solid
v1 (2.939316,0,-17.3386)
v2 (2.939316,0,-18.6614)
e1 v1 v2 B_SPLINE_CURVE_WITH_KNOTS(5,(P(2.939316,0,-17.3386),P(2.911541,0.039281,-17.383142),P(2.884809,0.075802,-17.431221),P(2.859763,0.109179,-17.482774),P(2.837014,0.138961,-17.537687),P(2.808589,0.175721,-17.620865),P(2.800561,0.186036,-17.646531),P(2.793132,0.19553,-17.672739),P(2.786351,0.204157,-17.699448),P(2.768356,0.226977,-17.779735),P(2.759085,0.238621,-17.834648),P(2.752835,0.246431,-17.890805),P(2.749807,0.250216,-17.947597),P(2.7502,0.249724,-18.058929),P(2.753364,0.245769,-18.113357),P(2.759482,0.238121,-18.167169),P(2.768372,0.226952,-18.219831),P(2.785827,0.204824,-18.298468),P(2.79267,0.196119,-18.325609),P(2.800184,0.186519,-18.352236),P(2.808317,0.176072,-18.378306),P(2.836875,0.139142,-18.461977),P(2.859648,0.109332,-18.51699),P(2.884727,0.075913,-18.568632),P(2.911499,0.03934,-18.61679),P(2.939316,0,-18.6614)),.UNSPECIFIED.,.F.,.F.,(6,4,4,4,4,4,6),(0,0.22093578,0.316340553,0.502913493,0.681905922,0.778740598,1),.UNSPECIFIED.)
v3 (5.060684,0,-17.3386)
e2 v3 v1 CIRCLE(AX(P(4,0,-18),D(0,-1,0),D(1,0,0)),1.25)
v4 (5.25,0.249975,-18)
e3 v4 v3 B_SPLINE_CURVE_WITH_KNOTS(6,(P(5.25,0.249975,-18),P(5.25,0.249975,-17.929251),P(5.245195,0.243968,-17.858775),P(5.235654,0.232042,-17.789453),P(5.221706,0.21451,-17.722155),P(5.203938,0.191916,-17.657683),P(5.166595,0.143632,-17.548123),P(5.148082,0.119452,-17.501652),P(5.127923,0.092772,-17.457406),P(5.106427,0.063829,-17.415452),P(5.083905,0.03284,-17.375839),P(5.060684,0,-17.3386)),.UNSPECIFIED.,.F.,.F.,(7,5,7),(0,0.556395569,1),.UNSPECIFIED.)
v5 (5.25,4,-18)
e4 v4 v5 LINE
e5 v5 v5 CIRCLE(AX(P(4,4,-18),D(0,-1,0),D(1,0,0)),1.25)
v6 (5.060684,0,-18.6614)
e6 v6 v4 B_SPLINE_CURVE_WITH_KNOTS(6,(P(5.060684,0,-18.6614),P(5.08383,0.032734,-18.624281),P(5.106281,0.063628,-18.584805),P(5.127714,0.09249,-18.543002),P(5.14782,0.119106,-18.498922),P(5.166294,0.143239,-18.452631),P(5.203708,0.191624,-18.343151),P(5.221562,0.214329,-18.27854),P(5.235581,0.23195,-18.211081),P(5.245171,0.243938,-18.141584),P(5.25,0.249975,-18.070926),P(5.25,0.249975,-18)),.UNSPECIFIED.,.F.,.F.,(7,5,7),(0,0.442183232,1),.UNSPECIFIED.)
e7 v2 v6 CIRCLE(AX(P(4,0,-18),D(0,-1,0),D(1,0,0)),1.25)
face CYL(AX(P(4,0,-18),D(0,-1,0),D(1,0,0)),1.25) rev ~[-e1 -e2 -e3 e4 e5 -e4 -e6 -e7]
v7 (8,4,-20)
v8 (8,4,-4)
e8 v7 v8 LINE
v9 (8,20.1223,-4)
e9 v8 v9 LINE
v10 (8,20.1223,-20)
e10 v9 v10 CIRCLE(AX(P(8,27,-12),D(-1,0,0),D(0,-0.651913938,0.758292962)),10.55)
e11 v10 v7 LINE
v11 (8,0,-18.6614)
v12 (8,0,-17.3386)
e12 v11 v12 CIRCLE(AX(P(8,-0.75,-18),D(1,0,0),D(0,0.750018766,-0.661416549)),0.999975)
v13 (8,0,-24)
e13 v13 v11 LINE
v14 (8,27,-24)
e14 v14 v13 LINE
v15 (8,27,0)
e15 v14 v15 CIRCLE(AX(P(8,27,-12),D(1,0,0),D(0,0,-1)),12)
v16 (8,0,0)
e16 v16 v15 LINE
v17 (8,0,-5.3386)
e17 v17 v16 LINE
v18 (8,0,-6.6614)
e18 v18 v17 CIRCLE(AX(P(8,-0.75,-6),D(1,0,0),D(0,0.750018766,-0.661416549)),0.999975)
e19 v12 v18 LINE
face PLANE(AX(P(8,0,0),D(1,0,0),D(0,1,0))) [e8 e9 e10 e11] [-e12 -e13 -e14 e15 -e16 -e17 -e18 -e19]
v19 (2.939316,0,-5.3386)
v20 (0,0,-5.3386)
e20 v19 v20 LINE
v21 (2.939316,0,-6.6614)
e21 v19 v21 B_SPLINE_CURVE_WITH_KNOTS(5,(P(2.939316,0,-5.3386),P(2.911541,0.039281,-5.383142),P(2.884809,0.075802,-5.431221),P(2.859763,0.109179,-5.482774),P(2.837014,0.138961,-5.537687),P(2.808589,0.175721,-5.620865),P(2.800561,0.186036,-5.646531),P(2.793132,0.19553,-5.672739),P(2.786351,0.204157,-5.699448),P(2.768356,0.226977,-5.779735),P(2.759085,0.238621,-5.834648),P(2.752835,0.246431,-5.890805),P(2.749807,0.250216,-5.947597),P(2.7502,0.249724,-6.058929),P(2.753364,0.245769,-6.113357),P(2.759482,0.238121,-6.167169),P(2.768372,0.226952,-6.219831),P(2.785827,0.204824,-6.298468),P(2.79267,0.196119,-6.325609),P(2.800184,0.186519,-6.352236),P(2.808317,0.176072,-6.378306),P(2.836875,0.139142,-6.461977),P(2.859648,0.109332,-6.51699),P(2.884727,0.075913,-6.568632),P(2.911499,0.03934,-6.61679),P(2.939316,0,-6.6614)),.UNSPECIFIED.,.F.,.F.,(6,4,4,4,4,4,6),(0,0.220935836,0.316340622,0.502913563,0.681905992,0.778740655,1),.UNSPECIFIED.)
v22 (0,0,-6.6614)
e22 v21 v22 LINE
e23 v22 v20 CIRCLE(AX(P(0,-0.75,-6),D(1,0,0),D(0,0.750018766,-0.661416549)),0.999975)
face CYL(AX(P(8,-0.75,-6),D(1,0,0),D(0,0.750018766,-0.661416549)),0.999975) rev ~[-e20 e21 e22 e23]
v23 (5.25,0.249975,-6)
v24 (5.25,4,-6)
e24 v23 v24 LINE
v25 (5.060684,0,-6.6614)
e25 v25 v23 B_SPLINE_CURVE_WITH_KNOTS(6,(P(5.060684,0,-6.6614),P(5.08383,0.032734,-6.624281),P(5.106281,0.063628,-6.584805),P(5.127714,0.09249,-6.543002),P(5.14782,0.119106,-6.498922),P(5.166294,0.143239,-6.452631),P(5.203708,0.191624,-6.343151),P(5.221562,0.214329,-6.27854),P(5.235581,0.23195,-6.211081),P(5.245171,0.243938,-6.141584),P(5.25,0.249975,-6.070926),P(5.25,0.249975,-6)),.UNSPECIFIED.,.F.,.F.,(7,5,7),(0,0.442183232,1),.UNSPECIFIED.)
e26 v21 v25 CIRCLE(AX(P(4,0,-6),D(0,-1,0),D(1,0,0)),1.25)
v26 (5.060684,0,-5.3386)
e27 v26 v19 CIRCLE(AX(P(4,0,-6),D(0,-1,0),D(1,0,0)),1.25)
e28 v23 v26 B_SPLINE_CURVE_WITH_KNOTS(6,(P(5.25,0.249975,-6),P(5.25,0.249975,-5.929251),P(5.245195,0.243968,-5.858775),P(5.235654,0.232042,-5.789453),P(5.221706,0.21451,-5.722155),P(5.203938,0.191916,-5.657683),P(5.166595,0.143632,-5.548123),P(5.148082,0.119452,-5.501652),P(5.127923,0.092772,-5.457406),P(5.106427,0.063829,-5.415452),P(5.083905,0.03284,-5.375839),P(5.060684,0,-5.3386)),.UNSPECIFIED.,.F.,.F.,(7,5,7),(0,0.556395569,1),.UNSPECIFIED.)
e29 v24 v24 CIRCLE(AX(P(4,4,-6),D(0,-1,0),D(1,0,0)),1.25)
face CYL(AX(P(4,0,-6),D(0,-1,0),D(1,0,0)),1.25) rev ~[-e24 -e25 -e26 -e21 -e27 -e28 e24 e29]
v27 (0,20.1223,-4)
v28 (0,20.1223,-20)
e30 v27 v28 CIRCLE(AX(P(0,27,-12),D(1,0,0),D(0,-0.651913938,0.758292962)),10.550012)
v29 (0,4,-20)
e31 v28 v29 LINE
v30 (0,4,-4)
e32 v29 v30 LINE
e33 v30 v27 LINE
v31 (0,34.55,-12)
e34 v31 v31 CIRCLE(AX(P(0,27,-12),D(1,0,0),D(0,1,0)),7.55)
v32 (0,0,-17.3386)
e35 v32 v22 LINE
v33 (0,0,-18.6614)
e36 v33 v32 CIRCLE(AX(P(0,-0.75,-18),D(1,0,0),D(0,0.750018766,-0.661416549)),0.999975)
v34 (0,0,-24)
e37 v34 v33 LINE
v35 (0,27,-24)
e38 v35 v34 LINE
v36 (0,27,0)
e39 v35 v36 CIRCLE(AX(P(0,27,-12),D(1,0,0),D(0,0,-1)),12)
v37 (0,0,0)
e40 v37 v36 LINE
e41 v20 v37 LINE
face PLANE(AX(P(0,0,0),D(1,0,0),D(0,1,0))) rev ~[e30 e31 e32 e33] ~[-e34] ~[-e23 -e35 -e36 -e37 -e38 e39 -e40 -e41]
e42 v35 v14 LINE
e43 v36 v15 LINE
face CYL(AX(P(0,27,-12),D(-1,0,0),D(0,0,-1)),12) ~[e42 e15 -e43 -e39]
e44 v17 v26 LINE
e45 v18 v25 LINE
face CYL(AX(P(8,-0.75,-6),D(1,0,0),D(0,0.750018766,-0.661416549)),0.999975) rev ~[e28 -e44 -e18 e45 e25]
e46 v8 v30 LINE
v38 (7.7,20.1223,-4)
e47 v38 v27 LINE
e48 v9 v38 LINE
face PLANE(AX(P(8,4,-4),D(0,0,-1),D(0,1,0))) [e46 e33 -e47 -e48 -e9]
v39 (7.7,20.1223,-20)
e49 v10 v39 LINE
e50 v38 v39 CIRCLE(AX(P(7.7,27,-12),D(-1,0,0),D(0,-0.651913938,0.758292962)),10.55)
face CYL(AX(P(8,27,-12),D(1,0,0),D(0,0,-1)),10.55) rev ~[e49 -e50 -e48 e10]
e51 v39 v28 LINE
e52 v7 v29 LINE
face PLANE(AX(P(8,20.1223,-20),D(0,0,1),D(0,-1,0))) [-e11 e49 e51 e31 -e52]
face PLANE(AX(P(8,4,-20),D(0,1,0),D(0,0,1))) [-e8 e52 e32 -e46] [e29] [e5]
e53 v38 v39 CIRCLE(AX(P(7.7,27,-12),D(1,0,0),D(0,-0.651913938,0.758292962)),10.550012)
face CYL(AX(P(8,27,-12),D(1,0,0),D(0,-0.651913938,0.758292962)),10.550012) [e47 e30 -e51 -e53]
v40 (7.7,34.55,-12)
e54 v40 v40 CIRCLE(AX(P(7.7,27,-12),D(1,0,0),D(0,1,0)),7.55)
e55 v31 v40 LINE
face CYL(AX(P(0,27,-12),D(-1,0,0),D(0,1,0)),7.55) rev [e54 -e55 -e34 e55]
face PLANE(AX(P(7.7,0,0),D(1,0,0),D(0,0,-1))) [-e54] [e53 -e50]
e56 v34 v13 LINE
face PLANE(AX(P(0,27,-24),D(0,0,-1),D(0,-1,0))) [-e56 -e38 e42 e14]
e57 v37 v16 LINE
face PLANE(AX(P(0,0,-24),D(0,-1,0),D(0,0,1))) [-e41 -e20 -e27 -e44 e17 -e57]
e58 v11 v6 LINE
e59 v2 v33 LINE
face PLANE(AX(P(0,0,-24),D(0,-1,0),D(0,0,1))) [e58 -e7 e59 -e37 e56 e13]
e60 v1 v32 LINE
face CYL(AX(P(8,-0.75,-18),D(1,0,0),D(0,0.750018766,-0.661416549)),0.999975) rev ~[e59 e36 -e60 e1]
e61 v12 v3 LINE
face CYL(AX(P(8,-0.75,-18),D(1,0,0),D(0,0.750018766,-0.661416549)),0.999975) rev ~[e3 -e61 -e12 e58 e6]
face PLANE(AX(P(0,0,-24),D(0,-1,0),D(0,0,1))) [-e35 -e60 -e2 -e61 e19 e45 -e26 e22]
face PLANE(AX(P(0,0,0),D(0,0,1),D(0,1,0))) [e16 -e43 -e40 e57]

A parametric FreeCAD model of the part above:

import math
import FreeCAD as App
import Part
import Sketcher

V = App.Vector

doc = App.newDocument("Part")
body = doc.addObject("PartDesign::Body", "Body")

# Sketch on YZ plane
sketch1 = body.newObject("Sketcher::SketchObject", "Sketch")
sketch1.AttachmentSupport = (doc.getObject("YZ_Plane"), [""])
sketch1.MapMode = "FlatFace"
sketch1.addGeometry([
    Part.LineSegment(V(27, 0, 0), V(0, 0, 0)),  # 0
    Part.LineSegment(V(0, 0, 0), V(0, -24, 0)),  # 1
    Part.LineSegment(V(0, -24, 0), V(27, -24, 0)),  # 2
    Part.ArcOfCircle(Part.Circle(V(27, -12, 0), V(0, 0, 1), 12), math.radians(-90), math.radians(90)),  # 3
    Part.Circle(V(27, -12, 0), V(0, 0, 1), 8),  # 4
], False)
sketch1.addConstraint([
    Sketcher.Constraint("Coincident", 0, 2, 1, 1),
    Sketcher.Constraint("Coincident", 1, 2, 2, 1),
    Sketcher.Constraint("Tangent", 2, 2, 3, 1),
    Sketcher.Constraint("Tangent", 3, 2, 0, 1),
    Sketcher.Constraint("Horizontal", 0),
    Sketcher.Constraint("Vertical", 1),
    Sketcher.Constraint("Horizontal", 2),
    Sketcher.Constraint("Coincident", 0, 2, -1, 1),
    Sketcher.Constraint("Coincident", 4, 3, 3, 3),
    Sketcher.Constraint("Radius", 3, 12.0),
    Sketcher.Constraint("Diameter", 4, 15.1),
    Sketcher.Constraint("DistanceX", 0, 2, 0, 1, 27.0),
])
pad1 = body.newObject("PartDesign::Pad", "Pad")
pad1.Profile = sketch1
pad1.Length = 8

# Sketch on YZ plane
sketch2 = body.newObject("Sketcher::SketchObject", "Sketch001")
sketch2.AttachmentSupport = (doc.getObject("YZ_Plane"), [""])
sketch2.MapMode = "FlatFace"
sketch2.AttachmentOffset = App.Placement(V(0, 0, 8), App.Rotation())
sketch2.addGeometry([
    Part.ArcOfCircle(Part.Circle(V(27, -12, 0), V(0, 0, 1), 11), math.radians(131), math.radians(229)),
    Part.LineSegment(V(20, -4, 0), V(4, -4, 0)),
    Part.LineSegment(V(4, -4, 0), V(4, -20, 0)),
    Part.LineSegment(V(4, -20, 0), V(20, -20, 0)),
], False)
sketch2.addConstraint([
    Sketcher.Constraint("Coincident", 0, 1, 1, 1),
    Sketcher.Constraint("Coincident", 1, 2, 2, 1),
    Sketcher.Constraint("Coincident", 2, 2, 3, 1),
    Sketcher.Constraint("Coincident", 3, 2, 0, 2),
    Sketcher.Constraint("Horizontal", 1),
    Sketcher.Constraint("Vertical", 2),
    Sketcher.Constraint("Horizontal", 3),
    Sketcher.Constraint("Vertical", 0, 1, 3, 2),
    Sketcher.Constraint("DistanceY", 0, 1, -1, 1, 4.0),
    Sketcher.Constraint("DistanceX", -1, 1, 1, 2, 4.0),
    Sketcher.Constraint("DistanceY", 2, 2, 2, 1, 16.0),
    Sketcher.Constraint("Radius", 0, 10.55),
    Sketcher.Constraint("DistanceX", -1, 1, 0, 3, 27.0),
])
pocket1 = body.newObject("PartDesign::Pocket", "Pocket")
pocket1.Profile = sketch2
pocket1.Length = 8

# Sketch on XZ plane
sketch3 = body.newObject("Sketcher::SketchObject", "Sketch002")
sketch3.AttachmentSupport = (doc.getObject("XZ_Plane"), [""])
sketch3.MapMode = "FlatFace"
sketch3.addGeometry([
    Part.Circle(V(4, -6, 0), V(0, 0, 1), 1.2),
    Part.Circle(V(4, -18, 0), V(0, 0, 1), 1.2),
], False)
sketch3.addConstraint([
    Sketcher.Constraint("Equal", 0, 1),
    Sketcher.Constraint("Vertical", 0, 3, 1, 3),
    Sketcher.Constraint("Diameter", 0, 2.5),
    Sketcher.Constraint("DistanceX", -1, 1, 0, 3, 4.0),
    Sketcher.Constraint("DistanceY", 0, 3, -1, 1, 6.0),
    Sketcher.Constraint("DistanceY", 1, 3, -1, 1, 18.0),
])
pocket2 = body.newObject("PartDesign::Pocket", "Pocket001")
pocket2.Profile = sketch3
pocket2.Length = 8

# Sketch on YZ plane
sketch4 = body.newObject("Sketcher::SketchObject", "Sketch003")
sketch4.AttachmentSupport = (doc.getObject("YZ_Plane"), [""])
sketch4.MapMode = "FlatFace"
sketch4.AttachmentOffset = App.Placement(V(0, 0, 8), App.Rotation())
sketch4.addGeometry([
    Part.LineSegment(V(0, -5.3, 0), V(0, -6.7, 0)),
    Part.ArcOfCircle(Part.Circle(V(-0.8, -6, 0), V(0, 0, 1), 1), math.radians(-41), math.radians(41)),
    Part.ArcOfCircle(Part.Circle(V(-0.8, -18, 0), V(0, 0, 1), 1), math.radians(-41), math.radians(41)),
    Part.LineSegment(V(0, -17.3, 0), V(0, -18.7, 0)),
], False)
sketch4.addConstraint([
    Sketcher.Constraint("Coincident", 0, 1, 1, 2),
    Sketcher.Constraint("Coincident", 1, 1, 0, 2),
    Sketcher.Constraint("Coincident", 2, 1, 3, 2),
    Sketcher.Constraint("Coincident", 3, 1, 2, 2),
    Sketcher.Constraint("Vertical", 0),
    Sketcher.Constraint("Vertical", 3),
    Sketcher.Constraint("Equal", 1, 2),
    Sketcher.Constraint("PointOnObject", 0, 1, -2),
    Sketcher.Constraint("PointOnObject", 2, 1, -2),
    Sketcher.Constraint("Vertical", 1, 3, 2, 3),
    Sketcher.Constraint("Radius", 1, 1.0),
    Sketcher.Constraint("DistanceY", 1, 3, -1, 1, 6.0),
    Sketcher.Constraint("DistanceY", 2, 3, -1, 1, 18.0),
    Sketcher.Constraint("DistanceX", 1, 3, -1, 1, 0.75),
])
pocket3 = body.newObject("PartDesign::Pocket", "Pocket002")
pocket3.Profile = sketch4
pocket3.Length = 8

# Sketch on YZ plane
sketch5 = body.newObject("Sketcher::SketchObject", "Sketch004")
sketch5.AttachmentSupport = (doc.getObject("YZ_Plane"), [""])
sketch5.MapMode = "FlatFace"
sketch5.AttachmentOffset = App.Placement(V(0, 0, 8), App.Rotation())
sketch5.addGeometry([
    Part.Circle(V(27, -12, 0), V(0, 0, 1), 11),
    Part.Circle(V(27, -12, 0), V(0, 0, 1), 8),
], False)
sketch5.addConstraint([
    Sketcher.Constraint("Coincident", 1, 3, 0, 3),
    Sketcher.Constraint("Diameter", 0, 21.1),
    Sketcher.Constraint("Diameter", 1, 15.1),
    Sketcher.Constraint("DistanceX", -1, 1, 0, 3, 27.0),
    Sketcher.Constraint("DistanceY", 0, 3, -1, 1, 12.0),
])
pocket4 = body.newObject("PartDesign::Pocket", "Pocket003")
pocket4.Profile = sketch5
pocket4.Length = 0.3

doc.recompute()
